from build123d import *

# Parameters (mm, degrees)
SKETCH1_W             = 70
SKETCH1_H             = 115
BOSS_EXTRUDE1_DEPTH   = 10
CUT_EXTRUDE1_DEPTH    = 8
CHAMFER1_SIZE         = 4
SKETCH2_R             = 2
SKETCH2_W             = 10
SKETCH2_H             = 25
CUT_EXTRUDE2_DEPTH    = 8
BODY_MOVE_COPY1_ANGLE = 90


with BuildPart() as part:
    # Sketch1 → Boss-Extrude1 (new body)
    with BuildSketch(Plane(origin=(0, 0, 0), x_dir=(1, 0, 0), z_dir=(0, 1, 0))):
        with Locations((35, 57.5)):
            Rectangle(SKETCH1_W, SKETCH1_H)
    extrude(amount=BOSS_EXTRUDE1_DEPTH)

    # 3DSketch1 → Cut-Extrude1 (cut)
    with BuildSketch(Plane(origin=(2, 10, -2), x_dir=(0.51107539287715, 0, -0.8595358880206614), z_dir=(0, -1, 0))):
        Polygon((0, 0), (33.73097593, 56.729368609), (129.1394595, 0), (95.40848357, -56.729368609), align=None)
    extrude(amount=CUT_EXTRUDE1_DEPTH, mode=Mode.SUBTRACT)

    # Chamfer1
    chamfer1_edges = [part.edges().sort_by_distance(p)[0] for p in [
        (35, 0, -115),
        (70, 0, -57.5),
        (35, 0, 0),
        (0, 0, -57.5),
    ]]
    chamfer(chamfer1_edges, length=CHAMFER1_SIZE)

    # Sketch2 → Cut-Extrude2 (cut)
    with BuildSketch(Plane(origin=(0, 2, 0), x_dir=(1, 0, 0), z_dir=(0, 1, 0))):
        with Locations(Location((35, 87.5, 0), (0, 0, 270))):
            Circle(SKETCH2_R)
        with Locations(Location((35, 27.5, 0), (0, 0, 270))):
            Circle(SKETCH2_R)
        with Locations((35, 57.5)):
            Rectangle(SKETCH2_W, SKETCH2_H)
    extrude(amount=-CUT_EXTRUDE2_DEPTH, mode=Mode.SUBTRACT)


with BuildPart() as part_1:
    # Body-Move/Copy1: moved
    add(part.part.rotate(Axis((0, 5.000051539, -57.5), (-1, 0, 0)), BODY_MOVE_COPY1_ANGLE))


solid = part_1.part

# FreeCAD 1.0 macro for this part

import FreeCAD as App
import Part
import Sketcher

V = App.Vector
Q = App.Units.Quantity


def edges_at(feature, points):
    """Names of the edges that pass closest to the given points."""
    edges = feature.Shape.Edges
    near = lambda p: min(range(len(edges)), key=lambda i: edges[i].distToShape(Part.Vertex(*p))[0])
    return sorted({f"Edge{near(p) + 1}" for p in points})


def add_polygon(sketch, points):
    """Adds a closed chain of lines whose ends are joined by coincident constraints."""
    first, n = sketch.GeometryCount, len(points)
    for a, b in zip(points, points[1:] + points[:1]):
        sketch.addGeometry(Part.LineSegment(App.Vector(*a, 0), App.Vector(*b, 0)), False)
    for i in range(n):
        sketch.addConstraint(Sketcher.Constraint("Coincident", first + i, 2, first + (i + 1) % n, 1))

doc = App.newDocument("Part")
body = doc.addObject("PartDesign::Body", "Body")

sketch1 = doc.addObject("Sketcher::SketchObject", "Sketch")
body.addObject(sketch1)
sketch1.AttachmentSupport = (doc.XZ_Plane, [""])
sketch1.MapMode = "FlatFace"
add_polygon(sketch1, [(0, -115), (0, 0), (70, 0), (70, -115)])
sketch1.addConstraint(Sketcher.Constraint("Vertical", 0))
sketch1.addConstraint(Sketcher.Constraint("Horizontal", 1))
sketch1.addConstraint(Sketcher.Constraint("Vertical", 2))
sketch1.addConstraint(Sketcher.Constraint("Horizontal", 3))
sketch1.addConstraint(Sketcher.Constraint("Coincident", 0, 2, -1, 1))
sketch1.addConstraint(Sketcher.Constraint("DistanceX", 1, 1, 1, 2, Q("70 mm")))
sketch1.addConstraint(Sketcher.Constraint("DistanceY", 0, 1, 0, 2, Q("115 mm")))
pad1 = doc.addObject("PartDesign::Pad", "Pad")
body.addObject(pad1)
pad1.Profile = sketch1
pad1.Length = 10
pad1.Reversed = True

sketch2 = doc.addObject("Sketcher::SketchObject", "Sketch001")
body.addObject(sketch2)
sketch2.AttachmentSupport = (doc.XZ_Plane, [""])
sketch2.MapMode = "FlatFace"
sketch2.AttachmentOffset = App.Placement(V(0, 0, -10), App.Rotation())
add_polygon(sketch2, [(68, -2), (2, -2), (2, -113), (68, -113)])
sketch2.addConstraint(Sketcher.Constraint("Horizontal", 0))
sketch2.addConstraint(Sketcher.Constraint("Vertical", 1))
sketch2.addConstraint(Sketcher.Constraint("Horizontal", 2))
sketch2.addConstraint(Sketcher.Constraint("Vertical", 3))
sketch2.addConstraint(Sketcher.Constraint("DistanceX", 0, 2, 0, 1, Q("66 mm")))
sketch2.addConstraint(Sketcher.Constraint("DistanceY", 1, 2, 1, 1, Q("111 mm")))
sketch2.addConstraint(Sketcher.Constraint("DistanceX", -1, 1, 0, 2, Q("2 mm")))
sketch2.addConstraint(Sketcher.Constraint("DistanceY", 0, 2, -1, 1, Q("2 mm")))
pocket1 = doc.addObject("PartDesign::Pocket", "Pocket")
body.addObject(pocket1)
pocket1.Profile = sketch2
pocket1.Length = 8
pocket1.Reversed = True
doc.recompute()

chamfer = doc.addObject("PartDesign::Chamfer", "Chamfer")
body.addObject(chamfer)
chamfer.Base = (pocket1, edges_at(pocket1, [
    (35, 0, -115),
    (70, 0, -57.5),
    (35, 0, 0),
    (0, 0, -57.5),
]))
chamfer.Size = 4

sketch3 = doc.addObject("Sketcher::SketchObject", "Sketch002")
body.addObject(sketch3)
sketch3.AttachmentSupport = (doc.XZ_Plane, [""])
sketch3.MapMode = "FlatFace"
sketch3.AttachmentOffset = App.Placement(V(0, 0, -2), App.Rotation())
sketch3.addGeometry(Part.Circle(V(35, -87.5, 0), V(0, 0, 1), 2), False)
sketch3.addGeometry(Part.Circle(V(35, -27.5, 0), V(0, 0, 1), 2), False)
add_polygon(sketch3, [(30, -70), (30, -45), (40, -45), (40, -70)])
sketch3.addConstraint(Sketcher.Constraint("Vertical", 2))
sketch3.addConstraint(Sketcher.Constraint("Horizontal", 3))
sketch3.addConstraint(Sketcher.Constraint("Vertical", 4))
sketch3.addConstraint(Sketcher.Constraint("Horizontal", 5))
sketch3.addConstraint(Sketcher.Constraint("Equal", 0, 1))
sketch3.addConstraint(Sketcher.Constraint("Vertical", 0, 3, 1, 3))
sketch3.addConstraint(Sketcher.Constraint("Diameter", 0, Q("4 mm")))
sketch3.addConstraint(Sketcher.Constraint("DistanceX", 3, 1, 3, 2, Q("10 mm")))
sketch3.addConstraint(Sketcher.Constraint("DistanceY", 2, 1, 2, 2, Q("25 mm")))
sketch3.addConstraint(Sketcher.Constraint("DistanceX", -1, 1, 0, 3, Q("35 mm")))
sketch3.addConstraint(Sketcher.Constraint("DistanceX", -1, 1, 2, 2, Q("30 mm")))
sketch3.addConstraint(Sketcher.Constraint("DistanceY", 2, 2, -1, 1, Q("45 mm")))
sketch3.addConstraint(Sketcher.Constraint("DistanceY", 0, 3, 1, 3, Q("60 mm")))
sketch3.addConstraint(Sketcher.Constraint("DistanceY", 0, 3, -1, 1, Q("87.5 mm")))
pocket2 = doc.addObject("PartDesign::Pocket", "Pocket001")
body.addObject(pocket2)
pocket2.Profile = sketch3
pocket2.Length = 8
pocket2.Reversed = True
body2 = doc.addObject("PartDesign::Body", "Body001")
doc.recompute()

body.Placement = App.Placement(V(0, 62.500052, -52.499948), App.Rotation(V(-1, 0, 0), 90))
boolean = doc.addObject("PartDesign::Boolean", "Boolean")
body2.addObject(boolean)
boolean.Type = "Fuse"
boolean.addObjects([body])

doc.recompute()
